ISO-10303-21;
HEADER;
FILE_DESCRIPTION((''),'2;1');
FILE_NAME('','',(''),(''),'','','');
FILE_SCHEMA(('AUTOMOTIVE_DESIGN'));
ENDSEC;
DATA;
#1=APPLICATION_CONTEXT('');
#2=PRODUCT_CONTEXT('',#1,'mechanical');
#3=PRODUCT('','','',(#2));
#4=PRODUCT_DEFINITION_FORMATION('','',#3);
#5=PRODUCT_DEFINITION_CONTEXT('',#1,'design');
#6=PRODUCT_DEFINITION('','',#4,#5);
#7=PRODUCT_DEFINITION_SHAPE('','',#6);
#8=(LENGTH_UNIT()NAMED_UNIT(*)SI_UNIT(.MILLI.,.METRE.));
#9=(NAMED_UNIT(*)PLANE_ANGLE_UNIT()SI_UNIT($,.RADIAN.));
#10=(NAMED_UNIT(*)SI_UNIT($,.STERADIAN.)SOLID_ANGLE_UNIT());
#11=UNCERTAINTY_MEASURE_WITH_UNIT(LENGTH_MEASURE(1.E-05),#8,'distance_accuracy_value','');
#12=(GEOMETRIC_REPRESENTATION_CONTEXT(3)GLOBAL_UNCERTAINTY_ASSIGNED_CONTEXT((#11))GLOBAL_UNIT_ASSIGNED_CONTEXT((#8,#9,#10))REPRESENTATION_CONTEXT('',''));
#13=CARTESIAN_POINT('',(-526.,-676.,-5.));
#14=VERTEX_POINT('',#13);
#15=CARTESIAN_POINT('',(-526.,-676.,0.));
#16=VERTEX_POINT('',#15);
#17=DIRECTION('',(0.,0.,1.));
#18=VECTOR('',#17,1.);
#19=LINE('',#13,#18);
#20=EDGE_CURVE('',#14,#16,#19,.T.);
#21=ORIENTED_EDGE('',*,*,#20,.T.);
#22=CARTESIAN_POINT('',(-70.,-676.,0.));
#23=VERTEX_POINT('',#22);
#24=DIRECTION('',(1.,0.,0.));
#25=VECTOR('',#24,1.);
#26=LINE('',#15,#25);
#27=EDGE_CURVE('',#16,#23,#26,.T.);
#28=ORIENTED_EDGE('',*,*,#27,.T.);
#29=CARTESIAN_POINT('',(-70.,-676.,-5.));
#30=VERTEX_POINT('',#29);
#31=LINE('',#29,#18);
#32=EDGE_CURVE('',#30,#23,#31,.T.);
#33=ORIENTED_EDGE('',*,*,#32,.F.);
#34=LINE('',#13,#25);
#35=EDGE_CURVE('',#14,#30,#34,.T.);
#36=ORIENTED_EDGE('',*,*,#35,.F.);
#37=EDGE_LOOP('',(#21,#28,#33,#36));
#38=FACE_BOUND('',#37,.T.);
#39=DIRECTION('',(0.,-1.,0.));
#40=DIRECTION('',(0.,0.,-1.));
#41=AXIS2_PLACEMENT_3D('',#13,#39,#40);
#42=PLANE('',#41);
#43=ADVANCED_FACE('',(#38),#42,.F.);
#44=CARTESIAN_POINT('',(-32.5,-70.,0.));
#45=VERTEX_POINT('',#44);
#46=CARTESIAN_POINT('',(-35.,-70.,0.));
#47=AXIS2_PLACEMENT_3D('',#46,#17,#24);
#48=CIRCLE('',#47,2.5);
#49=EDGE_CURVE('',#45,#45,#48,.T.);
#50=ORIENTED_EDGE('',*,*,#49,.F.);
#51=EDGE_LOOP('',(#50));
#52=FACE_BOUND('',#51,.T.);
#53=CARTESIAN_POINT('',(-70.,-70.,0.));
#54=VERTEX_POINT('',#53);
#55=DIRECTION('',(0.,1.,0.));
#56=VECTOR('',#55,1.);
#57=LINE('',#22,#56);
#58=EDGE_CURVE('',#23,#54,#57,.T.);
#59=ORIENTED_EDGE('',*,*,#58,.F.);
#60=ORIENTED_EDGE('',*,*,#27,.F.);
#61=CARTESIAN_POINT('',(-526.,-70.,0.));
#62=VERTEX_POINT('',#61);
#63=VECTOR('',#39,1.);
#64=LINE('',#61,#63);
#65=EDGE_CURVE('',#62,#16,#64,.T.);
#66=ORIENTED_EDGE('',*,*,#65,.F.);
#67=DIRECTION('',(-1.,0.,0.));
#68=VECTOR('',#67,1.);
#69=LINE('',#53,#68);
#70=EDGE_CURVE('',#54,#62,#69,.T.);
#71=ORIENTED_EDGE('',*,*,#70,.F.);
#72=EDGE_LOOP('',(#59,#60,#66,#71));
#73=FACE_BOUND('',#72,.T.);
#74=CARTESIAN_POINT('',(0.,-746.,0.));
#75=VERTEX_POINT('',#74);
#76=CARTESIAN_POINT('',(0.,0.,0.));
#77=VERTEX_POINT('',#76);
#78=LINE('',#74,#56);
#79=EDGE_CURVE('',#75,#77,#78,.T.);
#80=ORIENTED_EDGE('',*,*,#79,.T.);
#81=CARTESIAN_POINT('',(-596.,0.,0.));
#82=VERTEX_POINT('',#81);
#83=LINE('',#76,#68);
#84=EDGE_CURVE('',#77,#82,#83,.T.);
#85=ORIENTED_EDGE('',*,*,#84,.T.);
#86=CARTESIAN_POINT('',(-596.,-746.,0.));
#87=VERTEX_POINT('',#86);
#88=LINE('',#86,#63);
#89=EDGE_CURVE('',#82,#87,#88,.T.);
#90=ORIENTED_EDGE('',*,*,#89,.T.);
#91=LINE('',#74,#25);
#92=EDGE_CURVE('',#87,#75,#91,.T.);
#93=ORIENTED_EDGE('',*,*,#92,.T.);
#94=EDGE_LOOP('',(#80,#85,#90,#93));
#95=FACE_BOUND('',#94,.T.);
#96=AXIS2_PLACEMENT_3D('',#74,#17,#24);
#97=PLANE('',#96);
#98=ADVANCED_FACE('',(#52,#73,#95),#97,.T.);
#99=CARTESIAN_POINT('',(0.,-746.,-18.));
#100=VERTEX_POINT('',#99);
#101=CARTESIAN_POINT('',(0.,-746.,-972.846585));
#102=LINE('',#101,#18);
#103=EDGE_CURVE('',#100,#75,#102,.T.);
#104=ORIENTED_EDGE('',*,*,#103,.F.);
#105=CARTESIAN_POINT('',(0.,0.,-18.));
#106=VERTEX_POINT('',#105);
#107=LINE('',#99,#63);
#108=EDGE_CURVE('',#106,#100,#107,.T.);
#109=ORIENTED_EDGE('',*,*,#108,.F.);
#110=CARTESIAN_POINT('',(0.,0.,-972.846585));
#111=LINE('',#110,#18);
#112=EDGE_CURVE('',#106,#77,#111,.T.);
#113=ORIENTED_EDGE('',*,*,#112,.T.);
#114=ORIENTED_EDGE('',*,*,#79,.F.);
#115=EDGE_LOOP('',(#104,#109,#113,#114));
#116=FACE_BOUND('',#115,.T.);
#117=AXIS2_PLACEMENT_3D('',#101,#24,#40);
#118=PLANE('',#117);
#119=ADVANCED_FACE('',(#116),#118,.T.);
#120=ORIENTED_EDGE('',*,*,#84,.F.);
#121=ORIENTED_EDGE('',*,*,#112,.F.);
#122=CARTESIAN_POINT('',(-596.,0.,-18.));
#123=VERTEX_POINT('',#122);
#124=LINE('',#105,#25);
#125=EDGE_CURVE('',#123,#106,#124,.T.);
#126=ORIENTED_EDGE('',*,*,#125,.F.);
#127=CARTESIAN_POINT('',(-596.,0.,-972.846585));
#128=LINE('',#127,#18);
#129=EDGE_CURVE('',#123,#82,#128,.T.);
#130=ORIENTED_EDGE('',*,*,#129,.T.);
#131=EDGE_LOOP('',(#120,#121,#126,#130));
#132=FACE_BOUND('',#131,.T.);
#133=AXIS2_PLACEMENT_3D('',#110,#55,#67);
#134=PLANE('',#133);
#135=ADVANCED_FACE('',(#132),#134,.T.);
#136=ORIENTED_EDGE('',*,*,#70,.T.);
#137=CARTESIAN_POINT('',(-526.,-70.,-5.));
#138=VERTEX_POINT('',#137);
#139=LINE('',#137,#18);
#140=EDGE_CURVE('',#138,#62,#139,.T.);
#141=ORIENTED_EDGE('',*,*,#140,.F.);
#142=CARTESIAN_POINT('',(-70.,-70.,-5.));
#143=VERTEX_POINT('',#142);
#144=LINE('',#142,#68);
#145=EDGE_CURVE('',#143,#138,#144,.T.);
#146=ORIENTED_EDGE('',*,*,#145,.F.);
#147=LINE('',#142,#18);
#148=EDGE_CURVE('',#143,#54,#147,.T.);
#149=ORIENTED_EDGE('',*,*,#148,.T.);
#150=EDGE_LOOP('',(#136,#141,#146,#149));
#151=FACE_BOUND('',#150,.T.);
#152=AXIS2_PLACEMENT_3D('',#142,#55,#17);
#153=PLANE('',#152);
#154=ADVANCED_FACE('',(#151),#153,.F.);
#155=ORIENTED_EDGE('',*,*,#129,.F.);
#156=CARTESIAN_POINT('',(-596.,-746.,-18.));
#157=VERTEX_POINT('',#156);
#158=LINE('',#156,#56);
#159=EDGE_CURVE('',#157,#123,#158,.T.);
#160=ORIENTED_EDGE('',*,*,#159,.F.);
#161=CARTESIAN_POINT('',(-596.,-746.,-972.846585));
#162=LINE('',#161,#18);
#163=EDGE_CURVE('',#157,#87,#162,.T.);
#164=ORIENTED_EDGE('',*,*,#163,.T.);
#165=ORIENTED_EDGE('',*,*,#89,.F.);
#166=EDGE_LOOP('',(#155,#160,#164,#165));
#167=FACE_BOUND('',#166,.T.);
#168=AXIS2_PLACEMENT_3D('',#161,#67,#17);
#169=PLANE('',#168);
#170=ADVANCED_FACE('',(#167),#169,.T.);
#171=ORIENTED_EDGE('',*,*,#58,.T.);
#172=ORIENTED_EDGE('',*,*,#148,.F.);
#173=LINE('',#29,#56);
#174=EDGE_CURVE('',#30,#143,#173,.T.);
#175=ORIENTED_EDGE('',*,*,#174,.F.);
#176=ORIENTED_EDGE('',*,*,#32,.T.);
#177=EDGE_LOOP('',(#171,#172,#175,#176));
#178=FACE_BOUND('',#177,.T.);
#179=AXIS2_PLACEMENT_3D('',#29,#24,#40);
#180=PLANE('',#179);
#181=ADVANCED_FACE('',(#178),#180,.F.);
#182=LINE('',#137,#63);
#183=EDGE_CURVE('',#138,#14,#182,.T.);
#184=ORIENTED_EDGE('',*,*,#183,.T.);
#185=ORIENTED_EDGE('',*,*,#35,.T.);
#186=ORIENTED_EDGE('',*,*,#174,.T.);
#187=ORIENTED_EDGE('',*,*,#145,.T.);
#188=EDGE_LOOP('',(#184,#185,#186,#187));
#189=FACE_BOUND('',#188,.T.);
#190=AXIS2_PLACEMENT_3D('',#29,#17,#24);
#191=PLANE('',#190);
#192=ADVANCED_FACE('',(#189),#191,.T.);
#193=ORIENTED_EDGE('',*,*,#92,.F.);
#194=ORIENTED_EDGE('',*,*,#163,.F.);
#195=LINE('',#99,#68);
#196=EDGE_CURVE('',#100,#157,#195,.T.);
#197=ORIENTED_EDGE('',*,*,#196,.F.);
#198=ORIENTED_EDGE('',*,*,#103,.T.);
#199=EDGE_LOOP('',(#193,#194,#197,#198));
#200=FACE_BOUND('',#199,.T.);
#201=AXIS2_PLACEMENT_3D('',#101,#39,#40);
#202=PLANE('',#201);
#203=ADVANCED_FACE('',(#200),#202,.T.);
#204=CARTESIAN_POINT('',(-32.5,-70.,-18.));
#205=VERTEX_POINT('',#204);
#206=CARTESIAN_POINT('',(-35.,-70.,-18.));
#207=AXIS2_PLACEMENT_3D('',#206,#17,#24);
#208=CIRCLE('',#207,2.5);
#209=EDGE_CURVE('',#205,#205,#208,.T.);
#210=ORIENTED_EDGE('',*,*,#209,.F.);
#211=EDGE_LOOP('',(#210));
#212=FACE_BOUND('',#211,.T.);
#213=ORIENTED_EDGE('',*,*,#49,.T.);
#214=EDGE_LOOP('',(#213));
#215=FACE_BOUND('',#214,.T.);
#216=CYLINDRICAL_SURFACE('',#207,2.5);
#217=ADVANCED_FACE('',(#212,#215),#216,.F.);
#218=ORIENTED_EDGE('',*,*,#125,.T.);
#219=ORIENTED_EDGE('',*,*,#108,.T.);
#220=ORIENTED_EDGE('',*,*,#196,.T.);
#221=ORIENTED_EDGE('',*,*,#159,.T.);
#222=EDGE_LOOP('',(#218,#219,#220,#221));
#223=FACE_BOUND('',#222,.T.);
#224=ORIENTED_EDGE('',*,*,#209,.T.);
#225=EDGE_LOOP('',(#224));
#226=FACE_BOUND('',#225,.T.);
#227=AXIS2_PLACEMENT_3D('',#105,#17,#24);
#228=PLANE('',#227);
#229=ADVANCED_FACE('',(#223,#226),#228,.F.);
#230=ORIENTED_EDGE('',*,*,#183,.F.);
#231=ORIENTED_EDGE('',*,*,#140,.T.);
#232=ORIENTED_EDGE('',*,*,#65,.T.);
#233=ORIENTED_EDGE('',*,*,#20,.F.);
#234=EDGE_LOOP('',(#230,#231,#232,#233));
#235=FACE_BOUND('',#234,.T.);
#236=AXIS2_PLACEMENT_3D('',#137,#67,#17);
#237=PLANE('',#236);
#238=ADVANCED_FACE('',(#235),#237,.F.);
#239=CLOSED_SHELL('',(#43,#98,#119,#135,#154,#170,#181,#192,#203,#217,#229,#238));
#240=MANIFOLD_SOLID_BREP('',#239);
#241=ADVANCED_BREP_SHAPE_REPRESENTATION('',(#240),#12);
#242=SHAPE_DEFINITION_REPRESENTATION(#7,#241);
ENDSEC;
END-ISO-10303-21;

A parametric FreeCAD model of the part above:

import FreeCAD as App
import Part
import Sketcher
from FreeCAD import Vector

doc = App.newDocument("Part")
body = doc.addObject("PartDesign::Body", "Body")

sketch1 = doc.addObject("Sketcher::SketchObject", "Sketch")
body.addObject(sketch1)
sketch1.AttachmentSupport = (doc.XY_Plane, [""])
sketch1.MapMode = "FlatFace"
sketch1.addGeometry(Part.LineSegment(Vector(-596, 0, 0), Vector(-596, -746, 0)), False)
sketch1.addGeometry(Part.LineSegment(Vector(-596, -746, 0), Vector(0, -746, 0)), False)
sketch1.addGeometry(Part.LineSegment(Vector(0, -746, 0), Vector(0, 0, 0)), False)
sketch1.addGeometry(Part.LineSegment(Vector(0, 0, 0), Vector(-596, 0, 0)), False)
sketch1.addConstraint(Sketcher.Constraint("Coincident", 0, 2, 1, 1))
sketch1.addConstraint(Sketcher.Constraint("Coincident", 1, 2, 2, 1))
sketch1.addConstraint(Sketcher.Constraint("Coincident", 2, 2, 3, 1))
sketch1.addConstraint(Sketcher.Constraint("Coincident", 3, 2, 0, 1))
sketch1.addConstraint(Sketcher.Constraint("Vertical", 0))
sketch1.addConstraint(Sketcher.Constraint("Horizontal", 1))
sketch1.addConstraint(Sketcher.Constraint("Vertical", 2))
sketch1.addConstraint(Sketcher.Constraint("Horizontal", 3))
sketch1.addConstraint(Sketcher.Constraint("Coincident", 2, 2, -1, 1))
sketch1.addConstraint(Sketcher.Constraint("DistanceX", 1, 1, 1, 2, 596.0))
sketch1.addConstraint(Sketcher.Constraint("DistanceY", 0, 2, 0, 1, 746.0))
pad1 = doc.addObject("PartDesign::Pad", "Pad")
body.addObject(pad1)
pad1.Profile = sketch1
pad1.Length = 18
pad1.Reversed = True

sketch2 = doc.addObject("Sketcher::SketchObject", "Sketch001")
body.addObject(sketch2)
sketch2.AttachmentSupport = (doc.XY_Plane, [""])
sketch2.MapMode = "FlatFace"
sketch2.addGeometry(Part.Circle(Vector(-35, -70, 0), Vector(0, 0, 1), 2.5), False)
sketch2.addConstraint(Sketcher.Constraint("Diameter", 0, 5.0))
sketch2.addConstraint(Sketcher.Constraint("DistanceX", 0, 3, -1, 1, 35.0))
sketch2.addConstraint(Sketcher.Constraint("DistanceY", 0, 3, -1, 1, 70.0))
pocket1 = doc.addObject("PartDesign::Pocket", "Pocket")
body.addObject(pocket1)
pocket1.Profile = sketch2
pocket1.Type = "ThroughAll"

sketch3 = doc.addObject("Sketcher::SketchObject", "Sketch002")
body.addObject(sketch3)
sketch3.AttachmentSupport = (doc.XY_Plane, [""])
sketch3.MapMode = "FlatFace"
sketch3.addGeometry(Part.LineSegment(Vector(-526, -70, 0), Vector(-526, -676, 0)), False)
sketch3.addGeometry(Part.LineSegment(Vector(-526, -676, 0), Vector(-70, -676, 0)), False)
sketch3.addGeometry(Part.LineSegment(Vector(-70, -676, 0), Vector(-70, -70, 0)), False)
sketch3.addGeometry(Part.LineSegment(Vector(-70, -70, 0), Vector(-526, -70, 0)), False)
sketch3.addConstraint(Sketcher.Constraint("Coincident", 0, 2, 1, 1))
sketch3.addConstraint(Sketcher.Constraint("Coincident", 1, 2, 2, 1))
sketch3.addConstraint(Sketcher.Constraint("Coincident", 2, 2, 3, 1))
sketch3.addConstraint(Sketcher.Constraint("Coincident", 3, 2, 0, 1))
sketch3.addConstraint(Sketcher.Constraint("Vertical", 0))
sketch3.addConstraint(Sketcher.Constraint("Horizontal", 1))
sketch3.addConstraint(Sketcher.Constraint("Vertical", 2))
sketch3.addConstraint(Sketcher.Constraint("Horizontal", 3))
sketch3.addConstraint(Sketcher.Constraint("DistanceX", 1, 1, 1, 2, 456.0))
sketch3.addConstraint(Sketcher.Constraint("DistanceY", 0, 2, 0, 1, 606.0))
sketch3.addConstraint(Sketcher.Constraint("DistanceX", 0, 2, -1, 1, 526.0))
sketch3.addConstraint(Sketcher.Constraint("DistanceY", 0, 2, -1, 1, 676.0))
pocket2 = doc.addObject("PartDesign::Pocket", "Pocket001")
body.addObject(pocket2)
pocket2.Profile = sketch3
pocket2.Length = 5

doc.recompute()
